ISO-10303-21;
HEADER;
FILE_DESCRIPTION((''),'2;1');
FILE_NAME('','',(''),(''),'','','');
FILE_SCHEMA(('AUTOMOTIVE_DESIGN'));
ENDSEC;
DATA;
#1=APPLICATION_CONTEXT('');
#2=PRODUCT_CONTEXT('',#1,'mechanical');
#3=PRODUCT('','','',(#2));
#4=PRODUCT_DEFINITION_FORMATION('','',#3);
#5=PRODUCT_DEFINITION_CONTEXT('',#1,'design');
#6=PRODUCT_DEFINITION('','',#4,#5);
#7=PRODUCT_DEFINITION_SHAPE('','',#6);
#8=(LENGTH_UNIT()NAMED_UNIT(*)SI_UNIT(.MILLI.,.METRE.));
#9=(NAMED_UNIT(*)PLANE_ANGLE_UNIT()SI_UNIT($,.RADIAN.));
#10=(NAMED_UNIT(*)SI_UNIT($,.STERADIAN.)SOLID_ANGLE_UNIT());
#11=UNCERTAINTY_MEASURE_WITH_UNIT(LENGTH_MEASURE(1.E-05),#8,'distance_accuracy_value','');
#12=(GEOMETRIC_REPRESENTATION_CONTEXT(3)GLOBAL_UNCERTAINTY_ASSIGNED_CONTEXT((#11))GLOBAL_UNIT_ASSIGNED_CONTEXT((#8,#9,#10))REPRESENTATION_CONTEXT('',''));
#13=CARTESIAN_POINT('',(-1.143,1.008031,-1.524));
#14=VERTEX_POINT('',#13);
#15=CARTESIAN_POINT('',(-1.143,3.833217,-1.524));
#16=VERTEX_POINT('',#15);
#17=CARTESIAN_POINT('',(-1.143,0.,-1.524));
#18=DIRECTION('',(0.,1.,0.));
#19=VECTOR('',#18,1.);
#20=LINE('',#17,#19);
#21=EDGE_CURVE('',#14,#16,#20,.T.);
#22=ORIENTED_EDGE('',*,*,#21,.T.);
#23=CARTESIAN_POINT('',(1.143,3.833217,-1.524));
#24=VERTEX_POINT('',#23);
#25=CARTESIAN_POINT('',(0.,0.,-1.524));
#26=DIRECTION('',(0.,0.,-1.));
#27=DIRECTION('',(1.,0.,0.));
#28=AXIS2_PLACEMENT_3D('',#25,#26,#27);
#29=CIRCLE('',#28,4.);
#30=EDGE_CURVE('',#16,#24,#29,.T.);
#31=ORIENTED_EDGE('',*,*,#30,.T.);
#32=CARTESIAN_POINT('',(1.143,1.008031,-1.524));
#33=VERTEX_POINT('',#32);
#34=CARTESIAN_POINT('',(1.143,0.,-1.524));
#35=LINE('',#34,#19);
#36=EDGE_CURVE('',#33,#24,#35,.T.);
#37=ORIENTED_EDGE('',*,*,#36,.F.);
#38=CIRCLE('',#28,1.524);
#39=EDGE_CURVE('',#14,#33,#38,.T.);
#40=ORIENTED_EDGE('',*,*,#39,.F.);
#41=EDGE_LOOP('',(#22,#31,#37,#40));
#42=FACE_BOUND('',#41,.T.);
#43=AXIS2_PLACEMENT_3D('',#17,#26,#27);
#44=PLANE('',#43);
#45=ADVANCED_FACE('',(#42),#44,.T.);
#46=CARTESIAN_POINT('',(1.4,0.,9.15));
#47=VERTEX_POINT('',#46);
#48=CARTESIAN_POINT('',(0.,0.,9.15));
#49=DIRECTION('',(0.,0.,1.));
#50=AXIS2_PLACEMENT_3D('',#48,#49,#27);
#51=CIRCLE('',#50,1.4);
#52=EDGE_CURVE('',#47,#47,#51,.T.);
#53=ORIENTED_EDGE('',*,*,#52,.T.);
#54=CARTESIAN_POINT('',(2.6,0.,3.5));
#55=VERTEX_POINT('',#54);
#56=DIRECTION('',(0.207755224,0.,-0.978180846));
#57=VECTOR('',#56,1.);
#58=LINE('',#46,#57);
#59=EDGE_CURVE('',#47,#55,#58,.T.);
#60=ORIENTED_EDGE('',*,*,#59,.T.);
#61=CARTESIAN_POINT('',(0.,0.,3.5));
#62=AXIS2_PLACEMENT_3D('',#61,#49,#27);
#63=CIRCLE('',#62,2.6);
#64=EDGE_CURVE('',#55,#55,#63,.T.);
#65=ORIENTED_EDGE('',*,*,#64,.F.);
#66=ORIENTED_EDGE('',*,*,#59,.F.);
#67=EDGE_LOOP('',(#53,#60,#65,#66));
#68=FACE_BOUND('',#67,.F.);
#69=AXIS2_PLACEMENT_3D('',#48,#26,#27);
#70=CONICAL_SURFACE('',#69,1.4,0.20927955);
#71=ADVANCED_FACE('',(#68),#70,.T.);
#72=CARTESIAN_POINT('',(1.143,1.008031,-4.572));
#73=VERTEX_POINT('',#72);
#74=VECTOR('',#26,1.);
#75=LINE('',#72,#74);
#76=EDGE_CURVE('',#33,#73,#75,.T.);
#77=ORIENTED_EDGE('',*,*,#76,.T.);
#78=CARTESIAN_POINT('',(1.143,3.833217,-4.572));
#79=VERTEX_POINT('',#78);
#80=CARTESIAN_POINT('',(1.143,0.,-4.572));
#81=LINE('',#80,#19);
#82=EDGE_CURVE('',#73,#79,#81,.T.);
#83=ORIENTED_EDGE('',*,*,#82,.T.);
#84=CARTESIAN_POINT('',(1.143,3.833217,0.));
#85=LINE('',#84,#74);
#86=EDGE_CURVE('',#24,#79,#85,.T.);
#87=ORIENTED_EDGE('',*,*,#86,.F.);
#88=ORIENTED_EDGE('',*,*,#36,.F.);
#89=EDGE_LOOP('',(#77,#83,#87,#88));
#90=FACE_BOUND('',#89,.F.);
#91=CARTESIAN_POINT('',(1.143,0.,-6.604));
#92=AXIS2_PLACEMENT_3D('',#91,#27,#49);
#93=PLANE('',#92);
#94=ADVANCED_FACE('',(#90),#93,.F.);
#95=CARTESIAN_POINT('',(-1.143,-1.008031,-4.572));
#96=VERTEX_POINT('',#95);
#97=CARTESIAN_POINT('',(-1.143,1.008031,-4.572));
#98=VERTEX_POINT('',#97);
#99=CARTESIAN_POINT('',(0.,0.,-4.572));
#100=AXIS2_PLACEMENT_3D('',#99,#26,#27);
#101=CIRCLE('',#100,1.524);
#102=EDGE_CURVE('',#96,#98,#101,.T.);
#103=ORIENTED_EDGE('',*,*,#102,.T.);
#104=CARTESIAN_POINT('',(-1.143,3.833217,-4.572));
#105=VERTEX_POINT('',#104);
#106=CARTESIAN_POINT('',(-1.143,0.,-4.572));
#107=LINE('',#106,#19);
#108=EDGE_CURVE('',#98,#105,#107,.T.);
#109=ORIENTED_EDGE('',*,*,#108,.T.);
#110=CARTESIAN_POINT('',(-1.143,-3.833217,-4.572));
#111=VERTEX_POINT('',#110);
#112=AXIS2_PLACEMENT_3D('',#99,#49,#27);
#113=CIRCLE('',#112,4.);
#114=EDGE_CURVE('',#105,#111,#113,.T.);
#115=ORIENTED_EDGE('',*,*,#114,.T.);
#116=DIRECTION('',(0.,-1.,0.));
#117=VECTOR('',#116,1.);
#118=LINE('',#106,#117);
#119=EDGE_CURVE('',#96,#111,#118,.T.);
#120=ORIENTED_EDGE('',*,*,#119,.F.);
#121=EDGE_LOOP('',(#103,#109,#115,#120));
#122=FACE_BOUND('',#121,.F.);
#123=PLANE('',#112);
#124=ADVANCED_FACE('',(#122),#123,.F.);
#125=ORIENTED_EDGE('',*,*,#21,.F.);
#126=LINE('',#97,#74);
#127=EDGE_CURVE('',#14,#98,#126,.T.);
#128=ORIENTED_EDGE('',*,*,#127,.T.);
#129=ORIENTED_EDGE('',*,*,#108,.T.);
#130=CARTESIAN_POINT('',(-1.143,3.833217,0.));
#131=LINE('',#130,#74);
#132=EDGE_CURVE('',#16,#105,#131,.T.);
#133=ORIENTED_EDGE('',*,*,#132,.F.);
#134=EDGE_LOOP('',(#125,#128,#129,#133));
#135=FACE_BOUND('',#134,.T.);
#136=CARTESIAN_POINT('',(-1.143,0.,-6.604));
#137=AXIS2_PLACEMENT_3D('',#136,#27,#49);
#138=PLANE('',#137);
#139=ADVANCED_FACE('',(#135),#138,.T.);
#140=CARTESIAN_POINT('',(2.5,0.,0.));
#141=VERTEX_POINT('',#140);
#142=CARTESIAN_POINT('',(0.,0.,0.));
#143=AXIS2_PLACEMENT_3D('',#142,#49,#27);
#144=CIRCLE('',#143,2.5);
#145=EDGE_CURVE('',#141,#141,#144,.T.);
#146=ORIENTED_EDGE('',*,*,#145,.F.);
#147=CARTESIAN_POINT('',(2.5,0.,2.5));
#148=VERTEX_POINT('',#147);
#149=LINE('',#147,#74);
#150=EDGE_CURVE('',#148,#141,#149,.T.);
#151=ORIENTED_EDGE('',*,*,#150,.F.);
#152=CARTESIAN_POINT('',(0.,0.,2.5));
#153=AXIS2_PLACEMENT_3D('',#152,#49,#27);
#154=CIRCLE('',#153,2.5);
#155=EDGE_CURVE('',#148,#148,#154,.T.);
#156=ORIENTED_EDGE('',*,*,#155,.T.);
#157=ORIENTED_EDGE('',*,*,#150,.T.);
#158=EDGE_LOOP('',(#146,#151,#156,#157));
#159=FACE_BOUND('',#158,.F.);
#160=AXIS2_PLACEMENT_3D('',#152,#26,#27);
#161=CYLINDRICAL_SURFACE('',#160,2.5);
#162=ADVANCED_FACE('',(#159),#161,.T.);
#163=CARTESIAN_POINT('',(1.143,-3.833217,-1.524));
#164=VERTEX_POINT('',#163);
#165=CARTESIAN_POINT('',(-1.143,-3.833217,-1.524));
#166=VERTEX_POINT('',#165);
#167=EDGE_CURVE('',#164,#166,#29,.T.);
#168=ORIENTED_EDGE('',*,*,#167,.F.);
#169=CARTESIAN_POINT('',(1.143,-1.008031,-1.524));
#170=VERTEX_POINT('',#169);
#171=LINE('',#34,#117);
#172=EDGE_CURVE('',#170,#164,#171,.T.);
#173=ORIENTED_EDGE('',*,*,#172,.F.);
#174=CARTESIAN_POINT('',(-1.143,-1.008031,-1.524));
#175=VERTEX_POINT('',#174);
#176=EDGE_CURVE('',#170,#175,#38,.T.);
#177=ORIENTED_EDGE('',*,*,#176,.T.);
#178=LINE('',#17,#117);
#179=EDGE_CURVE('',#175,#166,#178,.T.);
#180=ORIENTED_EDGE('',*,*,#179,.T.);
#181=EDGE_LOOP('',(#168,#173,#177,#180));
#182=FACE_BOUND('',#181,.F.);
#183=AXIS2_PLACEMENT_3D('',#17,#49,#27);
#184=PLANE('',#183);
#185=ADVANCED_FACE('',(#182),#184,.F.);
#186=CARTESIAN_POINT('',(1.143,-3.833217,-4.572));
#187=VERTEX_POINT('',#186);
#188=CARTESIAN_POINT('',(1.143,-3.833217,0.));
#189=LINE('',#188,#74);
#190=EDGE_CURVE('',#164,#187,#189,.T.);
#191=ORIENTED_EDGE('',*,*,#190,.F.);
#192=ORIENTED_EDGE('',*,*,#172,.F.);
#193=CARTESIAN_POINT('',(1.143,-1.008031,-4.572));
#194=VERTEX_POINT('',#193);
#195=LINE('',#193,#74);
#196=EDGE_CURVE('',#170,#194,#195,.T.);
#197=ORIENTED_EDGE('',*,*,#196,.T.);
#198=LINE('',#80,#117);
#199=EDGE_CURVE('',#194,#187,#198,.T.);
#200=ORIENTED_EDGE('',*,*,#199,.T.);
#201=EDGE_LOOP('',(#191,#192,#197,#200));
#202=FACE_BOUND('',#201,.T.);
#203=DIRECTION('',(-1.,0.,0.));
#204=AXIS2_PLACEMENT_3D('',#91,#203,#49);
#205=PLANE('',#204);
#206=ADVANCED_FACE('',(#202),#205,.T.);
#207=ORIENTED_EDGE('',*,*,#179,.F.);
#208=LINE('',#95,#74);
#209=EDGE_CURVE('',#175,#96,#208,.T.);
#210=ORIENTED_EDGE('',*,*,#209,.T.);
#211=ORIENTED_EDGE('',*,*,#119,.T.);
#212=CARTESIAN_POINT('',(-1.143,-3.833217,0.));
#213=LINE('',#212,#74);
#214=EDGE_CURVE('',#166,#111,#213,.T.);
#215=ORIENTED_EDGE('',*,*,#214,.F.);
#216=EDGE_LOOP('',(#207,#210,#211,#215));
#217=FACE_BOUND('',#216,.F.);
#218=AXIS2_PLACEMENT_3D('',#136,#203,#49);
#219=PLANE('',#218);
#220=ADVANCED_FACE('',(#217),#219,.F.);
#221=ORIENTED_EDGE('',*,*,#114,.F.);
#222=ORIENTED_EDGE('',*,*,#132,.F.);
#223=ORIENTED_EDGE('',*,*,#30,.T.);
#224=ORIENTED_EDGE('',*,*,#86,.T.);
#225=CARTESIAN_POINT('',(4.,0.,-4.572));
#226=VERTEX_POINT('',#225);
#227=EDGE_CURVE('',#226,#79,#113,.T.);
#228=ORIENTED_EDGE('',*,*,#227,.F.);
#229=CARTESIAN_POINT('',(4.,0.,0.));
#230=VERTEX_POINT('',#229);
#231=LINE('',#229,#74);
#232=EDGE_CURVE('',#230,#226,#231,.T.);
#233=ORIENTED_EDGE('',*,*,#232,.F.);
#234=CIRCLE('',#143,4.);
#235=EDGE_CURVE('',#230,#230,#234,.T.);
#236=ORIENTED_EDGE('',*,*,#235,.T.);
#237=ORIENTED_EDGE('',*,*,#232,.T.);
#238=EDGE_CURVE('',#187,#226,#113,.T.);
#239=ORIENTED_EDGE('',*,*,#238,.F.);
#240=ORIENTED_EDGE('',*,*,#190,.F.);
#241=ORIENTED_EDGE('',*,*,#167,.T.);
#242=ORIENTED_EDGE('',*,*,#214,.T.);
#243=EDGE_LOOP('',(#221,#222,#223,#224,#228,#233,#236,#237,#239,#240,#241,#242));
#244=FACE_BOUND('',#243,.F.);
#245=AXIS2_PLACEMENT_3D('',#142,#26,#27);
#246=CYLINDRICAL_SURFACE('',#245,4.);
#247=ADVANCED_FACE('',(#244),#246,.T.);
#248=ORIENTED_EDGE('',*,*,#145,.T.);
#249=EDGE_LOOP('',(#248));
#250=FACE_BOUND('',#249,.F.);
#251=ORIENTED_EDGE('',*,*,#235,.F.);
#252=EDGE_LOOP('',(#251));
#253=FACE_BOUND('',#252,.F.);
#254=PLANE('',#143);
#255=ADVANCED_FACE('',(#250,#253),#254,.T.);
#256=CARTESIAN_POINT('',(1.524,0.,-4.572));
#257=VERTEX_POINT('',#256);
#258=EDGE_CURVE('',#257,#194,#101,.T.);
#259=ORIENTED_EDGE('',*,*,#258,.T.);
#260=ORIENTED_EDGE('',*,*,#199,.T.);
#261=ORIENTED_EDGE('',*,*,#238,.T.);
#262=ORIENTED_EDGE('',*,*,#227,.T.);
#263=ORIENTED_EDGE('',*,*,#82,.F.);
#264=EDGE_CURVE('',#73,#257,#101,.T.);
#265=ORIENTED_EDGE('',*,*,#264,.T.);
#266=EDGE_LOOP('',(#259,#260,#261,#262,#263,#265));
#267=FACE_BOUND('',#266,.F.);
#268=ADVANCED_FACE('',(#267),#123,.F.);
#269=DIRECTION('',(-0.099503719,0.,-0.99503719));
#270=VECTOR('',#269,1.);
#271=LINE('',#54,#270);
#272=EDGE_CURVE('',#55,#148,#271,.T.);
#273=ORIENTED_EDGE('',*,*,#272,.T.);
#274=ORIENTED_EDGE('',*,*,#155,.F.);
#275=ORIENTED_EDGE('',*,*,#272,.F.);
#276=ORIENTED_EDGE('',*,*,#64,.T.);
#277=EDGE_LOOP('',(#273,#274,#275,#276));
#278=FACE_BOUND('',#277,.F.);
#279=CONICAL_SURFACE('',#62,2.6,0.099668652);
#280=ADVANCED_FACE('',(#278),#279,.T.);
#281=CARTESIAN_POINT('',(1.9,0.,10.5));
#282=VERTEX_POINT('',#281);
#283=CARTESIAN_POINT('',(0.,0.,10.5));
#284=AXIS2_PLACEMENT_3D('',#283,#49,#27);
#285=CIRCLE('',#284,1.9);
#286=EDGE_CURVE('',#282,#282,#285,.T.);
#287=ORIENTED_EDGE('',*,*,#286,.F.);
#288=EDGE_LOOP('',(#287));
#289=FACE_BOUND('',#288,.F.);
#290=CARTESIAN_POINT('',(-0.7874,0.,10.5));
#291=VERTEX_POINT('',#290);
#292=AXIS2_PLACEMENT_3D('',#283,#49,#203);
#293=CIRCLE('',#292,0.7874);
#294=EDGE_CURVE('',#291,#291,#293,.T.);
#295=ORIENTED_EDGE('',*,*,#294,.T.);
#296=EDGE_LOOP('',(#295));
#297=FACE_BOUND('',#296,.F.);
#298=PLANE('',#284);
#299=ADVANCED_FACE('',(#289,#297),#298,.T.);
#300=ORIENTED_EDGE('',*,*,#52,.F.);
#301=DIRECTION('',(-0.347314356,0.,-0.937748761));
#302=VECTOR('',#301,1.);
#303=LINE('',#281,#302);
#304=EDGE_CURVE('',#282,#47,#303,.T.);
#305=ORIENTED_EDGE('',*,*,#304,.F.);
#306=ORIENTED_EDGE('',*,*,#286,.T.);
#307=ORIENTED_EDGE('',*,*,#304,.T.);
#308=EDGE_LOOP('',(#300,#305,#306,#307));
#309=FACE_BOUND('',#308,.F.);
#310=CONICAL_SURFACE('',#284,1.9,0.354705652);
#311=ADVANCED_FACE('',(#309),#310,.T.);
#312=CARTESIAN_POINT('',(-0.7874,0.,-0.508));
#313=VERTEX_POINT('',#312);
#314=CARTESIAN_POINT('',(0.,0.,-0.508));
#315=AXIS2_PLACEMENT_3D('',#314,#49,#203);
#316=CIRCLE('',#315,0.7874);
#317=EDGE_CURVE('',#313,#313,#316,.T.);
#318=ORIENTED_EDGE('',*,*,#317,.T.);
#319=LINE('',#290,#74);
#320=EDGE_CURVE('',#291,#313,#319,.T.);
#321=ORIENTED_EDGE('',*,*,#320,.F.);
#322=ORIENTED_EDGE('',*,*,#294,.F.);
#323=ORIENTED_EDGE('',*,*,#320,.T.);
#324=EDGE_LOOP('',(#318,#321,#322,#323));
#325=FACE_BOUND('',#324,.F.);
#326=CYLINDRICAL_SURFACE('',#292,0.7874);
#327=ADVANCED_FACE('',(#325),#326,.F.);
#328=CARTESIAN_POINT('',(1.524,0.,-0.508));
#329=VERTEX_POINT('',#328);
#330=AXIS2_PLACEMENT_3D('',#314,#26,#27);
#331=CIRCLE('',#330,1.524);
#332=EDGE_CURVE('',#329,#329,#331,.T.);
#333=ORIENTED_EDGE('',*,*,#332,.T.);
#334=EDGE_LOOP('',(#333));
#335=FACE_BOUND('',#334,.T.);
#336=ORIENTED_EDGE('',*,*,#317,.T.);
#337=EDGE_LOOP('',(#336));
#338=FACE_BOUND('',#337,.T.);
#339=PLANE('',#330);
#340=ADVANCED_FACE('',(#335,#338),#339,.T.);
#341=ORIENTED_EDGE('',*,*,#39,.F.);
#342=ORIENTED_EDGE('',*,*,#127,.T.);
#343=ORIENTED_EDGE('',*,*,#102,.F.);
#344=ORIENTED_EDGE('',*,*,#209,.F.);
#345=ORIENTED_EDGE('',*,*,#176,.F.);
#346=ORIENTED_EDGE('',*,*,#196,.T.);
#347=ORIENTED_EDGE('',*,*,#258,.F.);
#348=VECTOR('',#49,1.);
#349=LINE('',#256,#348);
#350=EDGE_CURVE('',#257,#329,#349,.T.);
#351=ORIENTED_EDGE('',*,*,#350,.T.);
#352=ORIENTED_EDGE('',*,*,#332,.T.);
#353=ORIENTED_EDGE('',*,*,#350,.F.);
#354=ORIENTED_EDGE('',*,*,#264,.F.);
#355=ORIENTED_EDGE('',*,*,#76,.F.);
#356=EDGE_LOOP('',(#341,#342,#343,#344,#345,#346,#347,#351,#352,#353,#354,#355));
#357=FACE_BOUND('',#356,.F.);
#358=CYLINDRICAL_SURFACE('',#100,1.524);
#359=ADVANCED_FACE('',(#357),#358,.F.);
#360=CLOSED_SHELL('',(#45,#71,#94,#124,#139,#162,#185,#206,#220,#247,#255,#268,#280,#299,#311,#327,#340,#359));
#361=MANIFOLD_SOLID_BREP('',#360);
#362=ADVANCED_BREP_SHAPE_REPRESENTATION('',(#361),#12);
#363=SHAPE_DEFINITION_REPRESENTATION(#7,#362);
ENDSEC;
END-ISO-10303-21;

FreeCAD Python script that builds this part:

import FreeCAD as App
import Part
import Sketcher
Q = App.Units.Quantity


def add_polygon(sketch, points):
    """Adds a closed chain of lines whose ends are joined by coincident constraints."""
    first, n = sketch.GeometryCount, len(points)
    for a, b in zip(points, points[1:] + points[:1]):
        sketch.addGeometry(Part.LineSegment(App.Vector(*a, 0), App.Vector(*b, 0)), False)
    for i in range(n):
        sketch.addConstraint(Sketcher.Constraint("Coincident", first + i, 2, first + (i + 1) % n, 1))

doc = App.newDocument("Part")
body = doc.addObject("PartDesign::Body", "Body")

# Sketch on XZ plane
sketch1 = doc.addObject("Sketcher::SketchObject", "Sketch")
body.addObject(sketch1)
sketch1.AttachmentSupport = (doc.XZ_Plane, [""])
sketch1.MapMode = "FlatFace"
add_polygon(sketch1, [(4, 0), (2.5, 0), (2.5, 2.5), (2.6, 3.5), (1.4, 9.2), (1.9, 10.5), (0, 10.5), (0, -4.6), (4, -4.6)])  # lines 0-8
sketch1.addConstraint([
    Sketcher.Constraint("Horizontal", 0),
    Sketcher.Constraint("Vertical", 1),
    Sketcher.Constraint("Horizontal", 5),
    Sketcher.Constraint("Vertical", 6),
    Sketcher.Constraint("Horizontal", 7),
    Sketcher.Constraint("Vertical", 8),
    Sketcher.Constraint("PointOnObject", 0, 2, -1),
    Sketcher.Constraint("PointOnObject", 5, 2, -2),
    Sketcher.Constraint("DistanceY", 8, 1, 8, 2, Q("0.18 in")),
    Sketcher.Constraint("DistanceX", 0, 2, 0, 1, Q("1.5 mm")),
    Sketcher.Constraint("DistanceX", 5, 2, 5, 1, Q("1.9 mm")),
    Sketcher.Constraint("DistanceX", 7, 1, 7, 2, Q("4 mm")),
    Sketcher.Constraint("DistanceY", 1, 1, 1, 2, Q("2.5 mm")),
    Sketcher.Constraint("DistanceY", 6, 2, 6, 1, Q("15.072 mm")),
    Sketcher.Constraint("DistanceX", -1, 1, 2, 2, Q("2.6 mm")),
    Sketcher.Constraint("DistanceY", -1, 1, 2, 2, Q("3.5 mm")),
    Sketcher.Constraint("DistanceX", -1, 1, 3, 2, Q("1.4 mm")),
    Sketcher.Constraint("DistanceY", -1, 1, 3, 2, Q("9.15 mm")),
])
revolution = doc.addObject("PartDesign::Revolution", "Revolution")
body.addObject(revolution)
revolution.Profile = sketch1
revolution.ReferenceAxis = (sketch1, ["V_Axis"])
revolution.Angle = 360

# Sketch on XY plane
sketch2 = doc.addObject("Sketcher::SketchObject", "Sketch001")
body.addObject(sketch2)
sketch2.AttachmentSupport = (doc.XY_Plane, [""])
sketch2.MapMode = "FlatFace"
sketch2.AttachmentOffset = App.Placement(App.Vector(0, 0, -0.18 * 25.4), App.Rotation())
sketch2.addGeometry(Part.Circle(App.Vector(0, 0, 0), App.Vector(0, 0, 1), 1.5), False)
sketch2.addConstraint([
    Sketcher.Constraint("Coincident", 0, 3, -1, 1),
    Sketcher.Constraint("Diameter", 0, Q("0.12 in")),
])
pocket1 = doc.addObject("PartDesign::Pocket", "Pocket")
body.addObject(pocket1)
pocket1.Profile = sketch2
pocket1.Length = Q("0.16 in")
pocket1.Reversed = True

# Sketch on XY plane
sketch3 = doc.addObject("Sketcher::SketchObject", "Sketch002")
body.addObject(sketch3)
sketch3.AttachmentSupport = (doc.XY_Plane, [""])
sketch3.MapMode = "FlatFace"
sketch3.AttachmentOffset = App.Placement(App.Vector(0, 0, 10.5), App.Rotation())
sketch3.addGeometry(Part.Circle(App.Vector(0, 0, 0), App.Vector(0, 0, 1), 0.8), False)
sketch3.addConstraint([
    Sketcher.Constraint("Coincident", 0, 3, -1, 1),
    Sketcher.Constraint("Diameter", 0, Q("0.062 in")),
])
pocket2 = doc.addObject("PartDesign::Pocket", "Pocket001")
body.addObject(pocket2)
pocket2.Profile = sketch3
pocket2.Type = "ThroughAll"

# Sketch on XZ plane
sketch4 = doc.addObject("Sketcher::SketchObject", "Sketch003")
body.addObject(sketch4)
sketch4.AttachmentSupport = (doc.XZ_Plane, [""])
sketch4.MapMode = "FlatFace"
add_polygon(sketch4, [(-1.1, -1.5), (-1.1, -6.6), (1.1, -6.6), (1.1, -1.5)])  # lines 0-3
sketch4.addConstraint([
    Sketcher.Constraint("Vertical", 0),
    Sketcher.Constraint("Horizontal", 1),
    Sketcher.Constraint("Vertical", 2),
    Sketcher.Constraint("Horizontal", 3),
    Sketcher.Constraint("DistanceY", 0, 2, 0, 1, Q("0.2 in")),
    Sketcher.Constraint("DistanceX", 1, 1, 1, 2, Q("0.09 in")),
    Sketcher.Constraint("DistanceY", 0, 2, -1, 1, Q("0.26 in")),
    Sketcher.Constraint("DistanceX", 0, 2, -1, 1, Q("0.045 in")),
])
pocket3 = doc.addObject("PartDesign::Pocket", "Pocket002")
body.addObject(pocket3)
pocket3.Profile = sketch4
pocket3.Type = "ThroughAll"
pocket3.Midplane = True

doc.recompute()
